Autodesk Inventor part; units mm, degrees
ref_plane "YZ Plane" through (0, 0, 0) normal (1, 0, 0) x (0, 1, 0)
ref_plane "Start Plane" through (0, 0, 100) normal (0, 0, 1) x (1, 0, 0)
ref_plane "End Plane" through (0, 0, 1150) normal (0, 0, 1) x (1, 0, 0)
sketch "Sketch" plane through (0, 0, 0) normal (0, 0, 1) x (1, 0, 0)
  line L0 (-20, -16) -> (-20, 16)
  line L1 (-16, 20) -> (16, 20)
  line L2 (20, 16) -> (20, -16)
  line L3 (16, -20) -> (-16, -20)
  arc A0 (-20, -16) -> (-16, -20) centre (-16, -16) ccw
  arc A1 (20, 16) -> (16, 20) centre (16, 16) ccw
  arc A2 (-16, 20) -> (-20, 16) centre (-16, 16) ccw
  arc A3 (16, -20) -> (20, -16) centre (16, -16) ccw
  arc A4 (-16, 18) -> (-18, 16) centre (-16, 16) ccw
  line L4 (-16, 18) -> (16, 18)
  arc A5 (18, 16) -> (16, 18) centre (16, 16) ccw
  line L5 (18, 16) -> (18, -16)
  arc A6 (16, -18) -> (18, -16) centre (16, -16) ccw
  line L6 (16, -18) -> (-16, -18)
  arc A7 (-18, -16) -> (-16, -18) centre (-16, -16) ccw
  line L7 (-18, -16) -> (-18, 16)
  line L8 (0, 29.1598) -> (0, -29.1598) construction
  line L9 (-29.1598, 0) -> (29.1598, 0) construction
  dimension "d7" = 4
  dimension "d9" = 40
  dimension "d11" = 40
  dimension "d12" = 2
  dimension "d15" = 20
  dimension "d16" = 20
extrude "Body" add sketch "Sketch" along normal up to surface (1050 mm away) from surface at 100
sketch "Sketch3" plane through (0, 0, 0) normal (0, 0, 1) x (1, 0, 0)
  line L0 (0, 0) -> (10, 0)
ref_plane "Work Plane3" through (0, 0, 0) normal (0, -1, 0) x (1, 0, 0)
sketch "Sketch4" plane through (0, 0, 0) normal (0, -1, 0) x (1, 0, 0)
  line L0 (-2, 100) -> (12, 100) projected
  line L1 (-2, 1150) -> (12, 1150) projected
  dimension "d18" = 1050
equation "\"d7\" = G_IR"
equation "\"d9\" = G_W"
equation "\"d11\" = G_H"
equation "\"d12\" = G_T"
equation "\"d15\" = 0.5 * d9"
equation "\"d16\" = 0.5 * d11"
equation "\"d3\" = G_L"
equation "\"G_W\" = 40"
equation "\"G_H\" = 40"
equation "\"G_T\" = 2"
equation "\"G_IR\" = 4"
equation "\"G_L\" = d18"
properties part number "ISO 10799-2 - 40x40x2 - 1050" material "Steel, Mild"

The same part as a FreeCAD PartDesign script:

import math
import FreeCAD as App
import Part
import Sketcher
Q = App.Units.Quantity

doc = App.newDocument("Part")
body = doc.addObject("PartDesign::Body", "Body")

sketch1 = doc.addObject("Sketcher::SketchObject", "Sketch")
body.addObject(sketch1)
sketch1.AttachmentSupport = (doc.XY_Plane, [""])
sketch1.MapMode = "FlatFace"
sketch1.AttachmentOffset = App.Placement(App.Vector(0, 0, 100), App.Rotation())
sketch1.addGeometry(Part.LineSegment(App.Vector(-20, 16, 0), App.Vector(-20, -16, 0)), False)
sketch1.addGeometry(Part.ArcOfCircle(Part.Circle(App.Vector(-16, -16, 0), App.Vector(0, 0, 1), 4), math.radians(180), math.radians(270)), False)
sketch1.addGeometry(Part.LineSegment(App.Vector(-16, -20, 0), App.Vector(16, -20, 0)), False)
sketch1.addGeometry(Part.ArcOfCircle(Part.Circle(App.Vector(16, -16, 0), App.Vector(0, 0, 1), 4), math.radians(-90), math.radians(0)), False)
sketch1.addGeometry(Part.LineSegment(App.Vector(20, -16, 0), App.Vector(20, 16, 0)), False)
sketch1.addGeometry(Part.ArcOfCircle(Part.Circle(App.Vector(16, 16, 0), App.Vector(0, 0, 1), 4), math.radians(0), math.radians(90)), False)
sketch1.addGeometry(Part.LineSegment(App.Vector(16, 20, 0), App.Vector(-16, 20, 0)), False)
sketch1.addGeometry(Part.ArcOfCircle(Part.Circle(App.Vector(-16, 16, 0), App.Vector(0, 0, 1), 4), math.radians(90), math.radians(180)), False)
sketch1.addGeometry(Part.ArcOfCircle(Part.Circle(App.Vector(-16, 16, 0), App.Vector(0, 0, 1), 2), math.radians(90), math.radians(180)), False)
sketch1.addGeometry(Part.LineSegment(App.Vector(-16, 18, 0), App.Vector(16, 18, 0)), False)
sketch1.addGeometry(Part.ArcOfCircle(Part.Circle(App.Vector(16, 16, 0), App.Vector(0, 0, 1), 2), math.radians(0), math.radians(90)), False)
sketch1.addGeometry(Part.LineSegment(App.Vector(18, 16, 0), App.Vector(18, -16, 0)), False)
sketch1.addGeometry(Part.ArcOfCircle(Part.Circle(App.Vector(16, -16, 0), App.Vector(0, 0, 1), 2), math.radians(-90), math.radians(0)), False)
sketch1.addGeometry(Part.LineSegment(App.Vector(16, -18, 0), App.Vector(-16, -18, 0)), False)
sketch1.addGeometry(Part.ArcOfCircle(Part.Circle(App.Vector(-16, -16, 0), App.Vector(0, 0, 1), 2), math.radians(180), math.radians(270)), False)
sketch1.addGeometry(Part.LineSegment(App.Vector(-18, -16, 0), App.Vector(-18, 16, 0)), False)
sketch1.addConstraint(Sketcher.Constraint("Tangent", 0, 2, 1, 1))
sketch1.addConstraint(Sketcher.Constraint("Tangent", 1, 2, 2, 1))
sketch1.addConstraint(Sketcher.Constraint("Tangent", 2, 2, 3, 1))
sketch1.addConstraint(Sketcher.Constraint("Tangent", 3, 2, 4, 1))
sketch1.addConstraint(Sketcher.Constraint("Tangent", 4, 2, 5, 1))
sketch1.addConstraint(Sketcher.Constraint("Tangent", 5, 2, 6, 1))
sketch1.addConstraint(Sketcher.Constraint("Tangent", 6, 2, 7, 1))
sketch1.addConstraint(Sketcher.Constraint("Tangent", 7, 2, 0, 1))
sketch1.addConstraint(Sketcher.Constraint("Tangent", 8, 1, 9, 1))
sketch1.addConstraint(Sketcher.Constraint("Tangent", 9, 2, 10, 2))
sketch1.addConstraint(Sketcher.Constraint("Tangent", 10, 1, 11, 1))
sketch1.addConstraint(Sketcher.Constraint("Tangent", 11, 2, 12, 2))
sketch1.addConstraint(Sketcher.Constraint("Tangent", 12, 1, 13, 1))
sketch1.addConstraint(Sketcher.Constraint("Tangent", 13, 2, 14, 2))
sketch1.addConstraint(Sketcher.Constraint("Tangent", 14, 1, 15, 1))
sketch1.addConstraint(Sketcher.Constraint("Tangent", 15, 2, 8, 2))
sketch1.addConstraint(Sketcher.Constraint("Vertical", 0))
sketch1.addConstraint(Sketcher.Constraint("Horizontal", 2))
sketch1.addConstraint(Sketcher.Constraint("Vertical", 4))
sketch1.addConstraint(Sketcher.Constraint("Horizontal", 6))
sketch1.addConstraint(Sketcher.Constraint("Horizontal", 9))
sketch1.addConstraint(Sketcher.Constraint("Vertical", 11))
sketch1.addConstraint(Sketcher.Constraint("Horizontal", 13))
sketch1.addConstraint(Sketcher.Constraint("Vertical", 15))
sketch1.addConstraint(Sketcher.Constraint("Coincident", 8, 3, 7, 3))
sketch1.addConstraint(Sketcher.Constraint("Coincident", 10, 3, 5, 3))
sketch1.addConstraint(Sketcher.Constraint("Coincident", 12, 3, 3, 3))
sketch1.addConstraint(Sketcher.Constraint("Equal", 1, 3))
sketch1.addConstraint(Sketcher.Constraint("Equal", 3, 5))
sketch1.addConstraint(Sketcher.Constraint("Equal", 5, 7))
sketch1.addConstraint(Sketcher.Constraint("Equal", 12, 14))
sketch1.addConstraint(Sketcher.Constraint("Symmetric", 1, 3, 5, 3, -1, 1))
sketch1.addConstraint(Sketcher.Constraint("Equal", 13, 0))
sketch1.addConstraint(Sketcher.Constraint("Radius", 1, Q("4 mm")))
sketch1.addConstraint(Sketcher.Constraint("Radius", 8, Q("2 mm")))
sketch1.addConstraint(Sketcher.Constraint("DistanceX", 0, 2, -1, 1, Q("20 mm")))
pad1 = doc.addObject("PartDesign::Pad", "Pad")
body.addObject(pad1)
pad1.Profile = sketch1
pad1.Length = 1050

doc.recompute()
